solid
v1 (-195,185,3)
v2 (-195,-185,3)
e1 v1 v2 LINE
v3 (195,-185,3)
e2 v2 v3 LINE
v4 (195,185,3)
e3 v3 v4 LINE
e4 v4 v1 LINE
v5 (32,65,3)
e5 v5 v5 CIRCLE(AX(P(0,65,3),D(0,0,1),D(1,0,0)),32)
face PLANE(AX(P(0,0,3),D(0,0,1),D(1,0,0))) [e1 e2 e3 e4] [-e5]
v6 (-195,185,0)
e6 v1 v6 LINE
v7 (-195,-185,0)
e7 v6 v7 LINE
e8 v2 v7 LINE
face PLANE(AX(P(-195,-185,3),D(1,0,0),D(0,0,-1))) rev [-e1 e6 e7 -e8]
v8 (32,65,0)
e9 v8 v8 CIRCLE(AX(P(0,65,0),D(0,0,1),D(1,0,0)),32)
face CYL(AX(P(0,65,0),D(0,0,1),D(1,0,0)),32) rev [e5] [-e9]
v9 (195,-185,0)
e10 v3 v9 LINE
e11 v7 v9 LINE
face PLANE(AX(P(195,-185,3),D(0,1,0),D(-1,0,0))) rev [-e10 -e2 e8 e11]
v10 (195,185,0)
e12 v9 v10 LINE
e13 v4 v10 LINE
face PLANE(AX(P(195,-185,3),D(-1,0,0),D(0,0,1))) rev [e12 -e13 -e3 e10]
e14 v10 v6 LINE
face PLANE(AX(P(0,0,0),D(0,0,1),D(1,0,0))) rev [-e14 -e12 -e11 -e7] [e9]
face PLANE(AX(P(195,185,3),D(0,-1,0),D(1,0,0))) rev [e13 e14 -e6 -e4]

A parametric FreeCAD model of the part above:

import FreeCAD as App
import Part
import Sketcher

V = App.Vector

doc = App.newDocument("Part")
body = doc.addObject("PartDesign::Body", "Body")

sketch1 = doc.addObject("Sketcher::SketchObject", "Sketch")
body.addObject(sketch1)
sketch1.AttachmentSupport = (doc.XY_Plane, [""])
sketch1.MapMode = "FlatFace"
sketch1.addGeometry([
    Part.LineSegment(V(-195, 185, 0), V(-195, -185, 0)),
    Part.LineSegment(V(-195, -185, 0), V(195, -185, 0)),
    Part.LineSegment(V(195, -185, 0), V(195, 185, 0)),
    Part.LineSegment(V(195, 185, 0), V(-195, 185, 0)),
], False)
sketch1.addConstraint([
    Sketcher.Constraint("Coincident", 0, 2, 1, 1),
    Sketcher.Constraint("Coincident", 1, 2, 2, 1),
    Sketcher.Constraint("Coincident", 2, 2, 3, 1),
    Sketcher.Constraint("Coincident", 3, 2, 0, 1),
    Sketcher.Constraint("Vertical", 0),
    Sketcher.Constraint("Horizontal", 1),
    Sketcher.Constraint("Vertical", 2),
    Sketcher.Constraint("Horizontal", 3),
    Sketcher.Constraint("Symmetric", 0, 2, 2, 2, -1, 1),
    Sketcher.Constraint("DistanceX", 1, 1, 1, 2, 390.0),
    Sketcher.Constraint("DistanceY", 0, 2, 0, 1, 370.0),
])
pad1 = doc.addObject("PartDesign::Pad", "Pad")
body.addObject(pad1)
pad1.Profile = sketch1
pad1.Length = 3

sketch2 = doc.addObject("Sketcher::SketchObject", "Sketch001")
body.addObject(sketch2)
sketch2.AttachmentSupport = (doc.XY_Plane, [""])
sketch2.MapMode = "FlatFace"
sketch2.AttachmentOffset = App.Placement(V(0, 0, 3), App.Rotation())
sketch2.addGeometry(Part.Circle(V(0, 65, 0), V(0, 0, 1), 32), False)
sketch2.addConstraint([
    Sketcher.Constraint("PointOnObject", 0, 3, -2),
    Sketcher.Constraint("Diameter", 0, 64.0),
    Sketcher.Constraint("DistanceY", -1, 1, 0, 3, 65.0),
])
pocket1 = doc.addObject("PartDesign::Pocket", "Pocket")
body.addObject(pocket1)
pocket1.Profile = sketch2
pocket1.Type = "ThroughAll"

doc.recompute()
